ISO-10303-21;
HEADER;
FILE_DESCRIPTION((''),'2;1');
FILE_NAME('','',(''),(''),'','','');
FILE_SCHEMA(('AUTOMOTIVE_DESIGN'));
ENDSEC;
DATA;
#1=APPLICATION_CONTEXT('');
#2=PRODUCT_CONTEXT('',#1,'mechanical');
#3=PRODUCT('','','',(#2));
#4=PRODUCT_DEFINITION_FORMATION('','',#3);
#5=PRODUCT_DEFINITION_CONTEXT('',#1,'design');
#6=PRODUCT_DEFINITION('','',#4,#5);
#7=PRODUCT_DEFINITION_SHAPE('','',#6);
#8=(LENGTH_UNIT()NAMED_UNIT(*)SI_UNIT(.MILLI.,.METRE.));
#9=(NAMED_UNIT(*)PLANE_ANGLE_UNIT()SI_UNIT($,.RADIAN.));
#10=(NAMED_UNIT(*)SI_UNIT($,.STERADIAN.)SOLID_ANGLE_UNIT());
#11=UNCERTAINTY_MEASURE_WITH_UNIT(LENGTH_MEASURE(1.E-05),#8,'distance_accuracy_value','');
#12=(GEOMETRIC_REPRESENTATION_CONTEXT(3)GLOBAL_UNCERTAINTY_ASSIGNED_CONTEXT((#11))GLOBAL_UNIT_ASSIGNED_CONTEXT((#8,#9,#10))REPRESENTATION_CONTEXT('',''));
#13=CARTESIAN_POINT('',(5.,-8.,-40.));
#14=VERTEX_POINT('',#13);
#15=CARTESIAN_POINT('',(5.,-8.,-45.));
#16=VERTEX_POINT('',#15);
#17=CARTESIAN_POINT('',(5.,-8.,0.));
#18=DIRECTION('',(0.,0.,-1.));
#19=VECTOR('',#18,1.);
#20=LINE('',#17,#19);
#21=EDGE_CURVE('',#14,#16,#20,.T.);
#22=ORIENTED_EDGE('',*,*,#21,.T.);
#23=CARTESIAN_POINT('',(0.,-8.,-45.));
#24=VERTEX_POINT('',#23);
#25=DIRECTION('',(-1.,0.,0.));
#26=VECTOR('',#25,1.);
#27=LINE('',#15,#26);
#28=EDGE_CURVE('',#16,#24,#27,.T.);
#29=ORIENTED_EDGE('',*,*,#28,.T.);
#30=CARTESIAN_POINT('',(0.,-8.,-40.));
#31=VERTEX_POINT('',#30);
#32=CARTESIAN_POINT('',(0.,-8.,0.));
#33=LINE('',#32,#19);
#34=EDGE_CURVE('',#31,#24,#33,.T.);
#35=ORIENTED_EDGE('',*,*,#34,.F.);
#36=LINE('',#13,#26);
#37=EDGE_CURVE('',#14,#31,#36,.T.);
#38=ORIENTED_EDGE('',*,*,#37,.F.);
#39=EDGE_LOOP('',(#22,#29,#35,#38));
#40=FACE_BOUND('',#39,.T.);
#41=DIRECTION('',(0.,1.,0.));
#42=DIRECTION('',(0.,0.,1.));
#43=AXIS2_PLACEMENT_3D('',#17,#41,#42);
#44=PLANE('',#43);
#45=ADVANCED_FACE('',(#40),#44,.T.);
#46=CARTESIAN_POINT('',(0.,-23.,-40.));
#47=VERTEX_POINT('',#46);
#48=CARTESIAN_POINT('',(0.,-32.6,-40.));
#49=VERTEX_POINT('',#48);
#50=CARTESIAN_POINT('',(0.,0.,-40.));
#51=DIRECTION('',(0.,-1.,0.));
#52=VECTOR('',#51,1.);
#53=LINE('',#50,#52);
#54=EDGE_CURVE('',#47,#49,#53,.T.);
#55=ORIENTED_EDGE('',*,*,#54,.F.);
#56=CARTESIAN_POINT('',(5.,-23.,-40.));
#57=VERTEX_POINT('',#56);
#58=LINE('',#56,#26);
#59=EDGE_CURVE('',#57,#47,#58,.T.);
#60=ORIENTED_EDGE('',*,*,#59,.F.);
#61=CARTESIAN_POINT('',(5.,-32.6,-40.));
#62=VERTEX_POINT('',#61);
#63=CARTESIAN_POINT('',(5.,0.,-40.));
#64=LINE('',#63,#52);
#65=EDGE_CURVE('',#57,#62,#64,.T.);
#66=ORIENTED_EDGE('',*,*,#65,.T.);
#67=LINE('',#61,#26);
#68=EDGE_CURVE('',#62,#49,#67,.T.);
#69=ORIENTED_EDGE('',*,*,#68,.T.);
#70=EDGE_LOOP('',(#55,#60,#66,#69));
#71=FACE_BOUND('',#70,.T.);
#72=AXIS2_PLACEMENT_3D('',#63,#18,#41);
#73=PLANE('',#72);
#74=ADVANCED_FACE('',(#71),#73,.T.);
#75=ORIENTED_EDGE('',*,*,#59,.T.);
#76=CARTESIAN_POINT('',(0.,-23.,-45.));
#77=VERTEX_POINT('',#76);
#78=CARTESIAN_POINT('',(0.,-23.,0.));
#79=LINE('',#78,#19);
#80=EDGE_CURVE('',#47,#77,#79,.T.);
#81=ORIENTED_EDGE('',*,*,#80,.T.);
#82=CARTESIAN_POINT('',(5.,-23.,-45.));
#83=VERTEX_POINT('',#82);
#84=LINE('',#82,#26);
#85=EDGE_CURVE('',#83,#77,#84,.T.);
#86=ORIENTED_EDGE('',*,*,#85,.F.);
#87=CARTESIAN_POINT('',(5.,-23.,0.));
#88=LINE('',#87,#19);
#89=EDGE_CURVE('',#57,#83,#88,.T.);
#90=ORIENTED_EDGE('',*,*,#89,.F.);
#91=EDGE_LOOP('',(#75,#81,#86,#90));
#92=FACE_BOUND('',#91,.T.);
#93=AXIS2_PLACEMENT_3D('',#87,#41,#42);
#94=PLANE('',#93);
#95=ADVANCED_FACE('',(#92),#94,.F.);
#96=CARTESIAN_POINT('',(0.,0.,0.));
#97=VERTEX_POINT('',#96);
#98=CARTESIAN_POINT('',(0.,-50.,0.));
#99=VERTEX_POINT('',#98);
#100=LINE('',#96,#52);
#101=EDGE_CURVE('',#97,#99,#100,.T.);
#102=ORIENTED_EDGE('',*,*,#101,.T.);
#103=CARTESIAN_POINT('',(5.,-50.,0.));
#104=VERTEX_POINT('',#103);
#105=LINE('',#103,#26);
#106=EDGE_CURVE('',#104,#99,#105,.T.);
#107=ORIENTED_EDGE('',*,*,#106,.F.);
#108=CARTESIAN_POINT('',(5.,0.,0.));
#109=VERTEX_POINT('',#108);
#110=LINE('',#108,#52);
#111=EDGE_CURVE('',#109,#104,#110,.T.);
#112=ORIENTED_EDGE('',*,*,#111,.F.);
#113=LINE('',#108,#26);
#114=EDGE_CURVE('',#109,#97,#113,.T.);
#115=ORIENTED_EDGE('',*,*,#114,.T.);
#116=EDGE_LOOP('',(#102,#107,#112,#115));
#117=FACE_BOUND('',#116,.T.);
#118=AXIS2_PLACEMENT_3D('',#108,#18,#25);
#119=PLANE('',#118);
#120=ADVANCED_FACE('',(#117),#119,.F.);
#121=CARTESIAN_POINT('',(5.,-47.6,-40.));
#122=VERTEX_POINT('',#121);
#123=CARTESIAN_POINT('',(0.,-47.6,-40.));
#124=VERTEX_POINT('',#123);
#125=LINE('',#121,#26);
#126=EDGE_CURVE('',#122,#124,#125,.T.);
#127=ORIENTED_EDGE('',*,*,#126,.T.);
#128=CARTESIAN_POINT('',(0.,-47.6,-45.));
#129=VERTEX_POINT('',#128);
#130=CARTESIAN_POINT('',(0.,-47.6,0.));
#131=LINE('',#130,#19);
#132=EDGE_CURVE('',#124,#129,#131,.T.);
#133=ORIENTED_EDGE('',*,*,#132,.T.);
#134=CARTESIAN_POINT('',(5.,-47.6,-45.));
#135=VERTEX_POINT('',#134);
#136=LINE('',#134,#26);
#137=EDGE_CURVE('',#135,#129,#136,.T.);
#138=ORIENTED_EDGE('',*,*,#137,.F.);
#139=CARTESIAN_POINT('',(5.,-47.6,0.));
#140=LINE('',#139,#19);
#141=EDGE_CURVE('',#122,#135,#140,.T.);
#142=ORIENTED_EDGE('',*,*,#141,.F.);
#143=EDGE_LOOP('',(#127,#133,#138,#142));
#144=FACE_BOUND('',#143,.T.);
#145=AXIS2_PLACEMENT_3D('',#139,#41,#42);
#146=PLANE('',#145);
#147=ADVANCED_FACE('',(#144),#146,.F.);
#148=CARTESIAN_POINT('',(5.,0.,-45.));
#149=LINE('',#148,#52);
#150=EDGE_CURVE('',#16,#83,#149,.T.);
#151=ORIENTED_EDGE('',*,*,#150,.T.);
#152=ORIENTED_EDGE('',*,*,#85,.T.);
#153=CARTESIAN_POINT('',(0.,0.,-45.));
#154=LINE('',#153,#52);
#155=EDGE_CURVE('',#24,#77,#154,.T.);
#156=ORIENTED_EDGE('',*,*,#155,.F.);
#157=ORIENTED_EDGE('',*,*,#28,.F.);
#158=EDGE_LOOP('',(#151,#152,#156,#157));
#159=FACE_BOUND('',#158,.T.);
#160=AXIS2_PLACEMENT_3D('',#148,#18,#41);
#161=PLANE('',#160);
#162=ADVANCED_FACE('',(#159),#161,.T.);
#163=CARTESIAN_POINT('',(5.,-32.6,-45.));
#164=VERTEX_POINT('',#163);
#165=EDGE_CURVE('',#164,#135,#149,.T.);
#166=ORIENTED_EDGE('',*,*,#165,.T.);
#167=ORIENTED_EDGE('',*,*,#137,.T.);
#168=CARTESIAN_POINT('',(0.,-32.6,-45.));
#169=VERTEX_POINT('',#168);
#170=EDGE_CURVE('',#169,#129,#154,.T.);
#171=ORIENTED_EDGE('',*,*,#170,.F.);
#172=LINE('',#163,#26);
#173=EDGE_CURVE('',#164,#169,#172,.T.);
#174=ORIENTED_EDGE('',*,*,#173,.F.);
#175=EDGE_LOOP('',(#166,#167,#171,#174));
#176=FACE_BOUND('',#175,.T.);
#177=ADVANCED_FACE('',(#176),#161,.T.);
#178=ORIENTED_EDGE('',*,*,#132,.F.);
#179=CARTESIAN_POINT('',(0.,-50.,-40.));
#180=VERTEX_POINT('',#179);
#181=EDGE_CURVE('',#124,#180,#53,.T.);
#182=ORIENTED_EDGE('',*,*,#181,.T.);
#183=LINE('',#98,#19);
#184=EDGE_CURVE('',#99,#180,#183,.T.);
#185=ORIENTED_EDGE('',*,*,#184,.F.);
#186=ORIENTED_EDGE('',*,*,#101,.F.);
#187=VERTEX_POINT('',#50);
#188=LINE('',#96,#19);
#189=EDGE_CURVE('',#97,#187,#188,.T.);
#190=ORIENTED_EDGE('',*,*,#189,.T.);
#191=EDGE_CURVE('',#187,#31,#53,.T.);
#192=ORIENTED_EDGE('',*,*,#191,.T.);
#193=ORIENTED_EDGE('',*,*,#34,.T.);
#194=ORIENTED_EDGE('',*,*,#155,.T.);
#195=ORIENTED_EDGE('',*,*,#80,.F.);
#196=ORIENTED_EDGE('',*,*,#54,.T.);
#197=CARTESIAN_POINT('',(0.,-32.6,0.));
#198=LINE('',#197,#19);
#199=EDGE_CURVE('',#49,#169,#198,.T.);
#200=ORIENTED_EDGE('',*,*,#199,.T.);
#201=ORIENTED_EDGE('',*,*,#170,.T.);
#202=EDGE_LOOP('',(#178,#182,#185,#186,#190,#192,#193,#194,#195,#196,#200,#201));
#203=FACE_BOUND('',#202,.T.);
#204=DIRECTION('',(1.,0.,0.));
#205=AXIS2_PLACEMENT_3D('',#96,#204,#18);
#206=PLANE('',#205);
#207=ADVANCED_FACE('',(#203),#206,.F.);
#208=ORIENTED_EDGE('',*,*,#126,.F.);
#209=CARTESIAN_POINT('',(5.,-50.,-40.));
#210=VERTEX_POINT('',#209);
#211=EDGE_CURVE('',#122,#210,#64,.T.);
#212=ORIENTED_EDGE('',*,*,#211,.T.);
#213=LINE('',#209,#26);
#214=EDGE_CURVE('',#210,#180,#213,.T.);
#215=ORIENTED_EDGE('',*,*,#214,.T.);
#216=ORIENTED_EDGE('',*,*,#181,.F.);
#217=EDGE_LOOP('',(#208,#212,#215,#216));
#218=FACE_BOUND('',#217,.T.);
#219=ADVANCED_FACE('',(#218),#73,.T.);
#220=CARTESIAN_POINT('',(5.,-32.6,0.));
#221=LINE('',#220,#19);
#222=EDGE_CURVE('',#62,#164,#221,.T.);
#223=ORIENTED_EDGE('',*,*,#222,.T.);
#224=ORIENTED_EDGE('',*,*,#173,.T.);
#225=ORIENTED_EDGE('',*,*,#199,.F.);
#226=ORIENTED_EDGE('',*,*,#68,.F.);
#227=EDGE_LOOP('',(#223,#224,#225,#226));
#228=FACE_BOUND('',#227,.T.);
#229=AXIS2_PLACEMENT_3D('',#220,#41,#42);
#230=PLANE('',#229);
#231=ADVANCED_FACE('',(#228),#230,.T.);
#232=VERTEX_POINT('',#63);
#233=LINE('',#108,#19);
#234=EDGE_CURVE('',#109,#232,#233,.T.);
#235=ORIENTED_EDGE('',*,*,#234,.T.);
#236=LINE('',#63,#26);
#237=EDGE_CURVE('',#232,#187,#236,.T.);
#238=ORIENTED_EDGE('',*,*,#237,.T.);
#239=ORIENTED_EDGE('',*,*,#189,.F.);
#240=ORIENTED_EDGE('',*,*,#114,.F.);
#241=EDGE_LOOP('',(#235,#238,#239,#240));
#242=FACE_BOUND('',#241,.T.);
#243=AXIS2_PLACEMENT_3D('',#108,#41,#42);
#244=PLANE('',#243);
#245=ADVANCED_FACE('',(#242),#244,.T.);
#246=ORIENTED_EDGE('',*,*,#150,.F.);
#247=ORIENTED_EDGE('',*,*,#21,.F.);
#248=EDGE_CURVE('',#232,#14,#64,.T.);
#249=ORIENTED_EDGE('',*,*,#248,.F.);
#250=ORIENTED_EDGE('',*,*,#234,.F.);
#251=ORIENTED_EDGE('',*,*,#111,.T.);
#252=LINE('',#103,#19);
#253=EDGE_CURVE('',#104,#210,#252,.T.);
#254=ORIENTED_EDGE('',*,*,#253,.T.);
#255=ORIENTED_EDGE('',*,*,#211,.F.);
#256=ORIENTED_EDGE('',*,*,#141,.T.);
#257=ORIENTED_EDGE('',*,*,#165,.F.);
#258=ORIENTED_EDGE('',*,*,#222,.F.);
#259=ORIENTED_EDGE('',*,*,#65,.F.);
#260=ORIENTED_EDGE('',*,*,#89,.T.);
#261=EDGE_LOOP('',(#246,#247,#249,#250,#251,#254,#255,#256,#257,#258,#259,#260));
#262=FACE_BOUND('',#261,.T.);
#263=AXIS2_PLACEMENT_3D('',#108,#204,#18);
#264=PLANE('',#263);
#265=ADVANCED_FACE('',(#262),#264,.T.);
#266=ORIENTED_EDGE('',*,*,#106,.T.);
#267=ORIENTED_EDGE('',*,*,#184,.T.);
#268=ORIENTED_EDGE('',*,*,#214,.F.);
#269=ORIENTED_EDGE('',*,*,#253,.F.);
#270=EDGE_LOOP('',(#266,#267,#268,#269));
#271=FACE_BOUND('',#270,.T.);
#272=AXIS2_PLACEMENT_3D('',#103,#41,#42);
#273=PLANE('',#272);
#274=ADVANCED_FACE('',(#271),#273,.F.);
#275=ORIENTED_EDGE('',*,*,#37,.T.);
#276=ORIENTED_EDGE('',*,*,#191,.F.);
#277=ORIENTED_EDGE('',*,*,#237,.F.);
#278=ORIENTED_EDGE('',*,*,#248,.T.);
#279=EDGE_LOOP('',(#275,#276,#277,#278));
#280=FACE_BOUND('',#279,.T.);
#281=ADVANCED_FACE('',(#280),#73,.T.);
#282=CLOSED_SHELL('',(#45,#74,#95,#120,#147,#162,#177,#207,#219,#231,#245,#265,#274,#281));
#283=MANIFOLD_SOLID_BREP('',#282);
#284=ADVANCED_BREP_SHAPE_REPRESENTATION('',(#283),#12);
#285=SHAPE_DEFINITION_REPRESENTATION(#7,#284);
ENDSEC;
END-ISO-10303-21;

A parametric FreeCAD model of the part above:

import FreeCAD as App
import Part
import Sketcher
from FreeCAD import Vector


def add_polygon(sketch, points):
    """Adds a closed chain of lines whose ends are joined by coincident constraints."""
    first, n = sketch.GeometryCount, len(points)
    for a, b in zip(points, points[1:] + points[:1]):
        sketch.addGeometry(Part.LineSegment(App.Vector(*a, 0), App.Vector(*b, 0)), False)
    for i in range(n):
        sketch.addConstraint(Sketcher.Constraint("Coincident", first + i, 2, first + (i + 1) % n, 1))

doc = App.newDocument("Part")
params = doc.addObject("Spreadsheet::Sheet", "Params")
for row, (alias, value) in enumerate([
    ("sketch1_width", "50 mm"),
    ("sketch1_width2", "15 mm"),
    ("sketch1_width3", "8 mm"),
    ("sketch1_height", "40 mm"),
    ("sketch1_height2", "5 mm"),
    ("pad1_length", "5 mm"),
], start=1):
    params.set(f"A{row}", alias)
    params.set(f"B{row}", "=" + value)
    params.setAlias(f"B{row}", alias)

body = doc.addObject("PartDesign::Body", "Body")

sketch1 = body.newObject("Sketcher::SketchObject", "Sketch")
sketch1.AttachmentSupport = (doc.getObject("YZ_Plane"), [""])
sketch1.MapMode = "FlatFace"
add_polygon(sketch1, [(0, 0), (-50, 0), (-50, -40), (-47.6, -40), (-47.6, -45), (-32.6, -45), (-32.6, -40), (-23, -40), (-23, -45), (-8, -45), (-8, -40), (0, -40)])
sketch1.addConstraint(Sketcher.Constraint("Horizontal", 0))
sketch1.addConstraint(Sketcher.Constraint("Vertical", 1))
sketch1.addConstraint(Sketcher.Constraint("Horizontal", 2))
sketch1.addConstraint(Sketcher.Constraint("Vertical", 3))
sketch1.addConstraint(Sketcher.Constraint("Horizontal", 4))
sketch1.addConstraint(Sketcher.Constraint("Vertical", 5))
sketch1.addConstraint(Sketcher.Constraint("Horizontal", 6))
sketch1.addConstraint(Sketcher.Constraint("Vertical", 7))
sketch1.addConstraint(Sketcher.Constraint("Horizontal", 8))
sketch1.addConstraint(Sketcher.Constraint("Vertical", 9))
sketch1.addConstraint(Sketcher.Constraint("Horizontal", 10))
sketch1.addConstraint(Sketcher.Constraint("Vertical", 11))
sketch1.addConstraint(Sketcher.Constraint("Coincident", 11, 2, -1, 1))
sketch1.addConstraint(Sketcher.Constraint("Horizontal", 2, 2, 5, 2))
sketch1.addConstraint(Sketcher.Constraint("Horizontal", 4, 2, 7, 2))
sketch1.addConstraint(Sketcher.Constraint("Horizontal", 6, 2, 9, 2))
sketch1.addConstraint(Sketcher.Constraint("Equal", 4, 8))
sketch1.addConstraint(Sketcher.Constraint("DistanceX", 0, 2, 0, 1, 50.0))
sketch1.addConstraint(Sketcher.Constraint("DistanceX", 4, 1, 4, 2, 15.0))
sketch1.addConstraint(Sketcher.Constraint("DistanceX", 10, 1, 10, 2, 8.0))
sketch1.addConstraint(Sketcher.Constraint("DistanceY", 1, 2, 1, 1, 40.0))
sketch1.addConstraint(Sketcher.Constraint("DistanceY", 3, 2, 3, 1, 5.0))
sketch1.addConstraint(Sketcher.Constraint("DistanceX", 2, 1, 2, 2, 2.4))
sketch1.setExpression("Constraints[29]", "Params.sketch1_width")
sketch1.setExpression("Constraints[30]", "Params.sketch1_width2")
sketch1.setExpression("Constraints[31]", "Params.sketch1_width3")
sketch1.setExpression("Constraints[32]", "Params.sketch1_height")
sketch1.setExpression("Constraints[33]", "Params.sketch1_height2")
pad1 = body.newObject("PartDesign::Pad", "Pad")
pad1.Profile = sketch1
pad1.setExpression("Length", "Params.pad1_length")

doc.recompute()
